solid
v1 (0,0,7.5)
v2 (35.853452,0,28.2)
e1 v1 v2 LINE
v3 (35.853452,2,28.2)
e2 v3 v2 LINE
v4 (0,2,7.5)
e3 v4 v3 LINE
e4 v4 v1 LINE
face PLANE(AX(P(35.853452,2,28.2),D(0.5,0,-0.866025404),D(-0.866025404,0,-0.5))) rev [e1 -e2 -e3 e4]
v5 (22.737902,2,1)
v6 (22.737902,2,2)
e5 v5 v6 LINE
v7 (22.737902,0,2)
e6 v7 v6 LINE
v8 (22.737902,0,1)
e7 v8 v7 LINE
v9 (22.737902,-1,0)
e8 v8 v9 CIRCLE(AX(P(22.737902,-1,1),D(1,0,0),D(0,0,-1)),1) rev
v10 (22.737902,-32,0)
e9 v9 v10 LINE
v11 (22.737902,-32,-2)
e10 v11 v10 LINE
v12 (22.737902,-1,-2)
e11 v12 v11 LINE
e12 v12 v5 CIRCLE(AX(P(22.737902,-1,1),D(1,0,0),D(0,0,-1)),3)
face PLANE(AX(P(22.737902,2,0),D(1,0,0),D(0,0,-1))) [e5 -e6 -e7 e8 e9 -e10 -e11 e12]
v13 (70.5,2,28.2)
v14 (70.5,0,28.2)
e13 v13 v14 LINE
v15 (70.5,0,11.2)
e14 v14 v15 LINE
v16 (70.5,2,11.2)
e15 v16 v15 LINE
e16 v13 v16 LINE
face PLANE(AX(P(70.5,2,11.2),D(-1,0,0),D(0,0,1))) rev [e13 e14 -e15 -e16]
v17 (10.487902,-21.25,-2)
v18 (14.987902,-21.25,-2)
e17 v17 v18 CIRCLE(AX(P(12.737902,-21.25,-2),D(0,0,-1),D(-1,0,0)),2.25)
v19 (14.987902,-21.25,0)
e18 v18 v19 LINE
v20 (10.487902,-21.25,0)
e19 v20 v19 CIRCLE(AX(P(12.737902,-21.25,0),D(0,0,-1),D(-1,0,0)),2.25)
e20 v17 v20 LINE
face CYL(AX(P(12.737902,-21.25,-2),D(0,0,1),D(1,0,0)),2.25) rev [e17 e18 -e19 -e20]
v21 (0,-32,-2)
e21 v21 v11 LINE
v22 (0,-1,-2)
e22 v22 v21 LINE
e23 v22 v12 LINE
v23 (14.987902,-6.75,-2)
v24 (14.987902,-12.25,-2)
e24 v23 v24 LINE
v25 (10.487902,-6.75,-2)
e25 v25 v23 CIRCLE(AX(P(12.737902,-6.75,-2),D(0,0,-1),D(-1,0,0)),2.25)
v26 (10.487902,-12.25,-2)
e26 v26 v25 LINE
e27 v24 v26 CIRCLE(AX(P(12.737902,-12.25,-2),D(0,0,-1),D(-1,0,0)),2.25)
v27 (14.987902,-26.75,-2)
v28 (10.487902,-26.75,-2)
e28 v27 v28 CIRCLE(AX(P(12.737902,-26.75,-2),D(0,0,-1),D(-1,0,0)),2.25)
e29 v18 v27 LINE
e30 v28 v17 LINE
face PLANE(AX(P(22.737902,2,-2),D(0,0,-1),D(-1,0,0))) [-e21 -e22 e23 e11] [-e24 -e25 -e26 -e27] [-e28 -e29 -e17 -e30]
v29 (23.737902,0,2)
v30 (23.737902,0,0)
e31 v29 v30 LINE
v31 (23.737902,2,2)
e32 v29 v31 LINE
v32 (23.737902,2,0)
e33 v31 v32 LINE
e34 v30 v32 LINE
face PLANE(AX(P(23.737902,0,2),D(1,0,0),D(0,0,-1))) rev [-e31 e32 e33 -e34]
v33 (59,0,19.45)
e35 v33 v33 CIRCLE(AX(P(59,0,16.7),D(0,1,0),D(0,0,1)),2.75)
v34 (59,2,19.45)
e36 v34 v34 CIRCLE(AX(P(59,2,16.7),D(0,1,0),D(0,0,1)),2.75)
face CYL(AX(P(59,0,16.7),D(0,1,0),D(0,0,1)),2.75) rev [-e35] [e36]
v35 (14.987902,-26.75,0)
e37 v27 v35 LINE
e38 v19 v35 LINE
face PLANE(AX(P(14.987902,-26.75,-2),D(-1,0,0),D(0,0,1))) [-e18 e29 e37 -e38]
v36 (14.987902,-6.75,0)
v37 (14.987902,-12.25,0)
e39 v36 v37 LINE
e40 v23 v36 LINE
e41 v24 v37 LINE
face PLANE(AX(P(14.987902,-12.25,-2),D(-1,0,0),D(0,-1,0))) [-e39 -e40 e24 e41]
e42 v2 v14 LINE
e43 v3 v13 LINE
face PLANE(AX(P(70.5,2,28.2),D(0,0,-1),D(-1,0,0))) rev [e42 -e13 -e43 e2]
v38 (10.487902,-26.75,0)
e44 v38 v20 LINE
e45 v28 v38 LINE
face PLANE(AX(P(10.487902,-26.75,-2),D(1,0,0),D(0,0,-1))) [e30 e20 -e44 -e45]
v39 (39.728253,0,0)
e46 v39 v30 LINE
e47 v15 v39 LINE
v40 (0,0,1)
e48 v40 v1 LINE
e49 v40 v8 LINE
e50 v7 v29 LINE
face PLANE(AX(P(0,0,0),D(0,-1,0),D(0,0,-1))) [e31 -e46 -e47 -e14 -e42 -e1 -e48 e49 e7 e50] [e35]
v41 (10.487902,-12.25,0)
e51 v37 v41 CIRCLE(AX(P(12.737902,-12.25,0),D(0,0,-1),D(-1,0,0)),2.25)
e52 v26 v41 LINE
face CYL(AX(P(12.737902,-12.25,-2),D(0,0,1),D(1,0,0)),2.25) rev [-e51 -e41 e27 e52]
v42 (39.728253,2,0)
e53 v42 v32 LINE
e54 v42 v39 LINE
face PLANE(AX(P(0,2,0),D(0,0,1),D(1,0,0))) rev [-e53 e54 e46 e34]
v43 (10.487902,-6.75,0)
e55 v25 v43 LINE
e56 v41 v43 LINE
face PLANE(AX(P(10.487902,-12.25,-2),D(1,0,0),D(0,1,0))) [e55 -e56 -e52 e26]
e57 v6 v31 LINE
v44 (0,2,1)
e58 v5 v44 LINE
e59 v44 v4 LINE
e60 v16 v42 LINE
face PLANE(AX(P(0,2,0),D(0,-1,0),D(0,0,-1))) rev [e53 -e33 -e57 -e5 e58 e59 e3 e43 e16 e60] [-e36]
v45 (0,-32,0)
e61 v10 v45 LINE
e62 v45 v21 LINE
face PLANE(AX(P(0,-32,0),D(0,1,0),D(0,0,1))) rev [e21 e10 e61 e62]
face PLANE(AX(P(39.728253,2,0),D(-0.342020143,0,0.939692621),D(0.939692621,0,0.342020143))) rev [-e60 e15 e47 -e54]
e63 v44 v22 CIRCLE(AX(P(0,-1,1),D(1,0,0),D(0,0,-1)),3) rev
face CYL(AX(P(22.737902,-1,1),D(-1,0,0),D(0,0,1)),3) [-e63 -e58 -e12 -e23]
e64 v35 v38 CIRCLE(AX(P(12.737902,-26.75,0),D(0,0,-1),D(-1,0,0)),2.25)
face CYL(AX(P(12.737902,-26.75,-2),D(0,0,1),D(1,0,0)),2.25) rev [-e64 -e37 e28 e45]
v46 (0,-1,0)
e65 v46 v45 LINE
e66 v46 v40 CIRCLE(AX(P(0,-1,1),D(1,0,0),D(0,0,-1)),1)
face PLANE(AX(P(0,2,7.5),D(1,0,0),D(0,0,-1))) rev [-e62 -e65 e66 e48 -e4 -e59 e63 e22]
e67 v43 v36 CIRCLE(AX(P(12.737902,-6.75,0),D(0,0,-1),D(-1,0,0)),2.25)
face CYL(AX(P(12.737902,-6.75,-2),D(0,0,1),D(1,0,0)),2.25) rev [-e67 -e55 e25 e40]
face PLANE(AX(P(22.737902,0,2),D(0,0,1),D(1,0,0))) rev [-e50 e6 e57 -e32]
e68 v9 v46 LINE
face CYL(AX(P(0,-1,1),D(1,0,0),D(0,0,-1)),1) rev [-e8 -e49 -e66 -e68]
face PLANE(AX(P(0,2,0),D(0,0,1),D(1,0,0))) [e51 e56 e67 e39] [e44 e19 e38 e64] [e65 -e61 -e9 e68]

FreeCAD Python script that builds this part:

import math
import FreeCAD as App
import Part
import Sketcher
Q = App.Units.Quantity


def edges_at(feature, points):
    """Names of the edges that pass closest to the given points."""
    edges = feature.Shape.Edges
    near = lambda p: min(range(len(edges)), key=lambda i: edges[i].distToShape(Part.Vertex(*p))[0])
    return sorted({f"Edge{near(p) + 1}" for p in points})

doc = App.newDocument("Part")
body = doc.addObject("PartDesign::Body", "Body")

sketch1 = body.newObject("Sketcher::SketchObject", "Sketch")
sketch1.AttachmentSupport = (doc.getObject("XZ_Plane"), [""])
sketch1.MapMode = "FlatFace"
sketch1.addGeometry([
    Part.LineSegment(App.Vector(39.728253, 0, 0), App.Vector(0, 0, 0)),
    Part.LineSegment(App.Vector(0, 0, 0), App.Vector(0, 7.5, 0)),
    Part.LineSegment(App.Vector(0, 7.5, 0), App.Vector(35.853452, 28.2, 0)),
    Part.LineSegment(App.Vector(35.853452, 28.2, 0), App.Vector(70.5, 28.2, 0)),
    Part.LineSegment(App.Vector(70.5, 28.2, 0), App.Vector(70.5, 11.2, 0)),
    Part.LineSegment(App.Vector(70.5, 11.2, 0), App.Vector(39.728253, 0, 0)),
], False)
sketch1.addConstraint([
    Sketcher.Constraint("Coincident", 0, 2, 1, 1),
    Sketcher.Constraint("Coincident", 1, 2, 2, 1),
    Sketcher.Constraint("Coincident", 2, 2, 3, 1),
    Sketcher.Constraint("Coincident", 3, 2, 4, 1),
    Sketcher.Constraint("Coincident", 4, 2, 5, 1),
    Sketcher.Constraint("Coincident", 5, 2, 0, 1),
    Sketcher.Constraint("Horizontal", 0),
    Sketcher.Constraint("Vertical", 1),
    Sketcher.Constraint("Horizontal", 3),
    Sketcher.Constraint("Vertical", 4),
    Sketcher.Constraint("Coincident", 0, 2, -1, 1),
    Sketcher.Constraint("DistanceY", 4, 2, 4, 1, Q("17 mm")),
    Sketcher.Constraint("Angle", 2, Q("30 deg")),
    Sketcher.Constraint("Angle", 5, Q("-160 deg")),
    Sketcher.Constraint("DistanceY", 1, 1, 1, 2, Q("7.5 mm")),
    Sketcher.Constraint("Distance", 2, Q("41.4 mm")),
    Sketcher.Constraint("DistanceX", -1, 1, 3, 2, Q("70.5 mm")),
])
pad1 = body.newObject("PartDesign::Pad", "Pad")
pad1.Profile = sketch1
pad1.Length = 2
pad1.Reversed = True

sketch2 = body.newObject("Sketcher::SketchObject", "Sketch001")
sketch2.AttachmentSupport = (doc.getObject("XZ_Plane"), [""])
sketch2.MapMode = "FlatFace"
sketch2.AttachmentOffset = App.Placement(App.Vector(0, 0, -2), App.Rotation())
sketch2.addGeometry(Part.Circle(App.Vector(59, 16.7, 0), App.Vector(0, 0, 1), 2.75), False)
sketch2.addConstraint([
    Sketcher.Constraint("Diameter", 0, Q("5.5 mm")),
    Sketcher.Constraint("DistanceX", -1, 1, 0, 3, Q("59 mm")),
    Sketcher.Constraint("DistanceY", -1, 1, 0, 3, Q("16.7 mm")),
])
pocket1 = body.newObject("PartDesign::Pocket", "Pocket")
pocket1.Profile = sketch2
pocket1.Type = "ThroughAll"
pocket1.Reversed = True

sketch3 = body.newObject("Sketcher::SketchObject", "Sketch002")
sketch3.AttachmentSupport = (doc.getObject("XZ_Plane"), [""])
sketch3.MapMode = "FlatFace"
sketch3.addGeometry([
    Part.LineSegment(App.Vector(0, 0, 0), App.Vector(0, -2, 0)),
    Part.LineSegment(App.Vector(0, -2, 0), App.Vector(22.737902, -2, 0)),
    Part.LineSegment(App.Vector(22.737902, -2, 0), App.Vector(22.737902, 0, 0)),
    Part.LineSegment(App.Vector(22.737902, 0, 0), App.Vector(0, 0, 0)),
], False)
sketch3.addConstraint([
    Sketcher.Constraint("Coincident", 0, 2, 1, 1),
    Sketcher.Constraint("Coincident", 1, 2, 2, 1),
    Sketcher.Constraint("Coincident", 2, 2, 3, 1),
    Sketcher.Constraint("Coincident", 3, 2, 0, 1),
    Sketcher.Constraint("Vertical", 0),
    Sketcher.Constraint("Horizontal", 1),
    Sketcher.Constraint("Vertical", 2),
    Sketcher.Constraint("Horizontal", 3),
    Sketcher.Constraint("Coincident", 3, 2, -1, 1),
    Sketcher.Constraint("DistanceY", 0, 2, 0, 1, Q("2 mm")),
    Sketcher.Constraint("DistanceX", 1, 1, 1, 2, Q("22.737902 mm")),
])
pad2 = body.newObject("PartDesign::Pad", "Pad001")
pad2.Profile = sketch3
pad2.Type = "TwoLengths"
pad2.Length = 32
pad2.Length2 = 2

sketch4 = body.newObject("Sketcher::SketchObject", "Sketch003")
sketch4.AttachmentSupport = (doc.getObject("XY_Plane"), [""])
sketch4.MapMode = "FlatFace"
sketch4.addGeometry([
    Part.LineSegment(App.Vector(14.987902, -21.25, 0), App.Vector(14.987902, -26.75, 0)),
    Part.ArcOfCircle(Part.Circle(App.Vector(12.737902, -26.75, 0), App.Vector(0, 0, 1), 2.25), math.radians(180), math.radians(360)),
    Part.LineSegment(App.Vector(10.487902, -26.75, 0), App.Vector(10.487902, -21.25, 0)),
    Part.ArcOfCircle(Part.Circle(App.Vector(12.737902, -21.25, 0), App.Vector(0, 0, 1), 2.25), math.radians(0), math.radians(180)),
    Part.LineSegment(App.Vector(14.987902, -6.75, 0), App.Vector(14.987902, -12.25, 0)),
    Part.ArcOfCircle(Part.Circle(App.Vector(12.737902, -12.25, 0), App.Vector(0, 0, 1), 2.25), math.radians(180), math.radians(360)),
    Part.LineSegment(App.Vector(10.487902, -12.25, 0), App.Vector(10.487902, -6.75, 0)),
    Part.ArcOfCircle(Part.Circle(App.Vector(12.737902, -6.75, 0), App.Vector(0, 0, 1), 2.25), math.radians(0), math.radians(180)),
], False)
sketch4.addConstraint([
    Sketcher.Constraint("Tangent", 0, 2, 1, 2),
    Sketcher.Constraint("Tangent", 1, 1, 2, 1),
    Sketcher.Constraint("Tangent", 2, 2, 3, 2),
    Sketcher.Constraint("Tangent", 3, 1, 0, 1),
    Sketcher.Constraint("Tangent", 4, 2, 5, 2),
    Sketcher.Constraint("Tangent", 5, 1, 6, 1),
    Sketcher.Constraint("Tangent", 6, 2, 7, 2),
    Sketcher.Constraint("Tangent", 7, 1, 4, 1),
    Sketcher.Constraint("Vertical", 0),
    Sketcher.Constraint("Vertical", 2),
    Sketcher.Constraint("Vertical", 4),
    Sketcher.Constraint("Vertical", 6),
    Sketcher.Constraint("Equal", 3, 5),
    Sketcher.Constraint("Vertical", 3, 3, 5, 3),
    Sketcher.Constraint("Equal", 2, 4),
    Sketcher.Constraint("Radius", 1, Q("2.25 mm")),
    Sketcher.Constraint("DistanceY", 0, 2, 0, 1, Q("5.5 mm")),
    Sketcher.Constraint("DistanceY", 3, 3, 5, 3, Q("9 mm")),
    Sketcher.Constraint("DistanceY", 1, 3, -1, 1, Q("26.75 mm")),
    Sketcher.Constraint("DistanceX", -1, 1, 1, 3, Q("12.737902 mm")),
])
pocket2 = body.newObject("PartDesign::Pocket", "Pocket001")
pocket2.Profile = sketch4
pocket2.Type = "ThroughAll"

sketch5 = body.newObject("Sketcher::SketchObject", "Sketch004")
sketch5.AttachmentSupport = (doc.getObject("XZ_Plane"), [""])
sketch5.MapMode = "FlatFace"
sketch5.AttachmentOffset = App.Placement(App.Vector(0, 0, -2), App.Rotation())
sketch5.addGeometry([
    Part.LineSegment(App.Vector(22.737902, 0, 0), App.Vector(22.737902, 2, 0)),
    Part.LineSegment(App.Vector(22.737902, 2, 0), App.Vector(23.737902, 2, 0)),
    Part.LineSegment(App.Vector(23.737902, 2, 0), App.Vector(23.737902, 0, 0)),
    Part.LineSegment(App.Vector(23.737902, 0, 0), App.Vector(22.737902, 0, 0)),
], False)
sketch5.addConstraint([
    Sketcher.Constraint("Coincident", 0, 2, 1, 1),
    Sketcher.Constraint("Coincident", 1, 2, 2, 1),
    Sketcher.Constraint("Coincident", 2, 2, 3, 1),
    Sketcher.Constraint("Coincident", 3, 2, 0, 1),
    Sketcher.Constraint("Vertical", 0),
    Sketcher.Constraint("Horizontal", 1),
    Sketcher.Constraint("Vertical", 2),
    Sketcher.Constraint("Horizontal", 3),
    Sketcher.Constraint("PointOnObject", 2, 2, -1),
    Sketcher.Constraint("DistanceX", 1, 1, 1, 2, Q("1 mm")),
    Sketcher.Constraint("DistanceY", 0, 1, 0, 2, Q("2 mm")),
    Sketcher.Constraint("DistanceX", -1, 1, 0, 2, Q("22.737902 mm")),
])
pocket3 = body.newObject("PartDesign::Pocket", "Pocket002")
pocket3.Profile = sketch5
pocket3.Length = 2
pocket3.Reversed = True
doc.recompute()

fillet = body.newObject("PartDesign::Fillet", "Fillet")
fillet.Base = (pocket3, edges_at(pocket3, [(11.369, 2, -2)]))
fillet.Radius = 3
doc.recompute()

fillet2 = body.newObject("PartDesign::Fillet", "Fillet001")
fillet2.Base = (fillet, edges_at(fillet, [(11.369, 0, 0)]))
fillet2.Radius = 1

doc.recompute()
